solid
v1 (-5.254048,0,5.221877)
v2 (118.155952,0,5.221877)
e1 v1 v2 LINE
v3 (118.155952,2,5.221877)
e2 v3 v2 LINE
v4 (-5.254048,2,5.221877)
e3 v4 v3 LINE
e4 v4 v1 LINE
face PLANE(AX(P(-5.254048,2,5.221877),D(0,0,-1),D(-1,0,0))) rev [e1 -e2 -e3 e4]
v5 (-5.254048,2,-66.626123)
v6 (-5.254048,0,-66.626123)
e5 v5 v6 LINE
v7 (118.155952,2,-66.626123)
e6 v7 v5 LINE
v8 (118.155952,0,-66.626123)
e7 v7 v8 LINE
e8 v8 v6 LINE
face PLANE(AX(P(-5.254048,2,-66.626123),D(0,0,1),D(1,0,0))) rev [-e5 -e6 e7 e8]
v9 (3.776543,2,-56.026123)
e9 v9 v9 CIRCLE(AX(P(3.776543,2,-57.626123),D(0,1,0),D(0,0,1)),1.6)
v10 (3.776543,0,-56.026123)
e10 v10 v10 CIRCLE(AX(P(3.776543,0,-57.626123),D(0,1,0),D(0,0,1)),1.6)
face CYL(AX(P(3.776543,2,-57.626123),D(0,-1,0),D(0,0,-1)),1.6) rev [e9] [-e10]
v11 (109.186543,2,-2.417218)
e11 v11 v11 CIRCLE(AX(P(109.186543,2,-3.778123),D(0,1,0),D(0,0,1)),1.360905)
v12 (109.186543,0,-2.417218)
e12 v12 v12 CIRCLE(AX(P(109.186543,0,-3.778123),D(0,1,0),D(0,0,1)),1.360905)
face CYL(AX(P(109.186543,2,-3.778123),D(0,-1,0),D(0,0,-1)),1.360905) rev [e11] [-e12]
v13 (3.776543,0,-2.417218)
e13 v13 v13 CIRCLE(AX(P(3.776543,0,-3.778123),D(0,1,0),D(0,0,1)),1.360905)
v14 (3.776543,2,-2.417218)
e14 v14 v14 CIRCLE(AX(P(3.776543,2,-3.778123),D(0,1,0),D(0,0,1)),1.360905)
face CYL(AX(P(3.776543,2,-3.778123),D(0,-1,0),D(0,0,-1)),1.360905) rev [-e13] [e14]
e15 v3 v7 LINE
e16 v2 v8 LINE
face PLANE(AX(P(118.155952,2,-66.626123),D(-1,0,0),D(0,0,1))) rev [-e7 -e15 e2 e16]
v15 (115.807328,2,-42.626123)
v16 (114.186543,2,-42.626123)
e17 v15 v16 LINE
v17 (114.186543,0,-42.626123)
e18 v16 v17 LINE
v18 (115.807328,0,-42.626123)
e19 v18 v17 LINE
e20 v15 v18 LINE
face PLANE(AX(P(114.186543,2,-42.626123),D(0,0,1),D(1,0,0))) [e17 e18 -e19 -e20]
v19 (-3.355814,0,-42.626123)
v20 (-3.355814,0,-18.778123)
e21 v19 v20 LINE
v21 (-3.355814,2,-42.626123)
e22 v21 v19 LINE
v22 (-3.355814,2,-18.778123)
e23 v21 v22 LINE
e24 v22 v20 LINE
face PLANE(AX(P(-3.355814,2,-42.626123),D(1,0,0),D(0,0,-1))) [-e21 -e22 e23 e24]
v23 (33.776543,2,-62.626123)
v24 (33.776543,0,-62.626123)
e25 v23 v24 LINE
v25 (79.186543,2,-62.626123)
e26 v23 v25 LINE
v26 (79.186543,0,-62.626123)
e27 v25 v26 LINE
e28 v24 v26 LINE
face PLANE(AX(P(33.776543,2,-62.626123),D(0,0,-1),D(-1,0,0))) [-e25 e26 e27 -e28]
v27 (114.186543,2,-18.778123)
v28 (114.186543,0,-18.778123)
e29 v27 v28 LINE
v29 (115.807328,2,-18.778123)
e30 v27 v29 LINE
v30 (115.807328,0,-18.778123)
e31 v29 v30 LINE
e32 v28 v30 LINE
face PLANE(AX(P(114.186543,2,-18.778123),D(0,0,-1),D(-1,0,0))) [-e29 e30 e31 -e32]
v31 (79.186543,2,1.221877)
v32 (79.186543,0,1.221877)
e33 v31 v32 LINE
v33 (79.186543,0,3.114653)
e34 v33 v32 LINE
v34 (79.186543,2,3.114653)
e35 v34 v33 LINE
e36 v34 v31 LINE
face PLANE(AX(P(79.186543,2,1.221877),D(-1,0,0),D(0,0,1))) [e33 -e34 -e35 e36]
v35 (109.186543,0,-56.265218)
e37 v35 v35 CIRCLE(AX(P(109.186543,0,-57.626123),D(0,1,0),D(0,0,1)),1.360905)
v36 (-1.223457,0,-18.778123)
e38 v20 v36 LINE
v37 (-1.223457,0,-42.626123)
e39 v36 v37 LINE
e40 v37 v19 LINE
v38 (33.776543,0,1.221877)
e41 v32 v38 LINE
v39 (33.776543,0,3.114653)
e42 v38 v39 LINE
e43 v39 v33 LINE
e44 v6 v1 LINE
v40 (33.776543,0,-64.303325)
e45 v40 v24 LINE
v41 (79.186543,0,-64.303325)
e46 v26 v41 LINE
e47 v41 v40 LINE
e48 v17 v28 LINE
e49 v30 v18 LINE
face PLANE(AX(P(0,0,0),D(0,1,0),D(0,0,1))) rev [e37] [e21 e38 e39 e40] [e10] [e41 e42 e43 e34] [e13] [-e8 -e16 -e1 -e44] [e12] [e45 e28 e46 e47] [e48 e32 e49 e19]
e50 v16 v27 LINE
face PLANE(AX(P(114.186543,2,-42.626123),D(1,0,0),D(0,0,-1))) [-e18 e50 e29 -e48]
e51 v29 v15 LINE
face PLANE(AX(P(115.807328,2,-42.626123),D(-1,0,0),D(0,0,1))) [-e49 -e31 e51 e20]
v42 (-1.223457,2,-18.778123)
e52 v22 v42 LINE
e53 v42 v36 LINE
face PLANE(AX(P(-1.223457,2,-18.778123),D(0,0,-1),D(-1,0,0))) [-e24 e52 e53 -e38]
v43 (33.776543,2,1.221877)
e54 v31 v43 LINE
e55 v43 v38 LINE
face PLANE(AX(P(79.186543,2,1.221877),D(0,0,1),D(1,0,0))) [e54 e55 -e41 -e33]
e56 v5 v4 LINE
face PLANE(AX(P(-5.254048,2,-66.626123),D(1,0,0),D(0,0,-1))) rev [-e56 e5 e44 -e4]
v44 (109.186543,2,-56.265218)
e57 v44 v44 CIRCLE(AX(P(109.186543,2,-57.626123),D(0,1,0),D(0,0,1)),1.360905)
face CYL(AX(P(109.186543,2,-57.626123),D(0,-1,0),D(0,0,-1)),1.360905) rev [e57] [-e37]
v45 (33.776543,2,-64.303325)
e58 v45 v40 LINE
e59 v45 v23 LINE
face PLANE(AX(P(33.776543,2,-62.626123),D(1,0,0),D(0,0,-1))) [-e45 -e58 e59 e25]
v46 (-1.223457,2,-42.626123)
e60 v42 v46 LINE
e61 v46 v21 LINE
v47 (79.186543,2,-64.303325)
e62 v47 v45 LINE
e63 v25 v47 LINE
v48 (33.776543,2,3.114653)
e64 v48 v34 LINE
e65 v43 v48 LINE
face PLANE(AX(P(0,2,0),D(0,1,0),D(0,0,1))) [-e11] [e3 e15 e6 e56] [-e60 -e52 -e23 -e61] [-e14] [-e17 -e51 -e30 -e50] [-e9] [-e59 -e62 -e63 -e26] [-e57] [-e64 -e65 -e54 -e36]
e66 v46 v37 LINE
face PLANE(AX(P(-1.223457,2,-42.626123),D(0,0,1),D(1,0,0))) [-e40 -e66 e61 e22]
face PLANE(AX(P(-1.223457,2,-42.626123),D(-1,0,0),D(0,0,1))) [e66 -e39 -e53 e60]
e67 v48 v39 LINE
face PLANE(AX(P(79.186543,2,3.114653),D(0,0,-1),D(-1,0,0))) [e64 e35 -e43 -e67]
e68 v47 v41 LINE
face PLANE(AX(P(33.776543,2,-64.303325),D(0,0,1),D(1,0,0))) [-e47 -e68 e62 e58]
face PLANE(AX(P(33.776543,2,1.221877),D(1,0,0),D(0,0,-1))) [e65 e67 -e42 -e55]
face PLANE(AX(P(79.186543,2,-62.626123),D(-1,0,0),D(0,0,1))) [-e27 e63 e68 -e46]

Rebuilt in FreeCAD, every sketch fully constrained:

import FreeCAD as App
import Part
import Sketcher
from FreeCAD import Vector


def add_polygon(sketch, points):
    """Adds a closed chain of lines whose ends are joined by coincident constraints."""
    first, n = sketch.GeometryCount, len(points)
    for a, b in zip(points, points[1:] + points[:1]):
        sketch.addGeometry(Part.LineSegment(App.Vector(*a, 0), App.Vector(*b, 0)), False)
    for i in range(n):
        sketch.addConstraint(Sketcher.Constraint("Coincident", first + i, 2, first + (i + 1) % n, 1))

doc = App.newDocument("Part")
body = doc.addObject("PartDesign::Body", "Body")

# Sketch on XZ plane
sketch1 = body.newObject("Sketcher::SketchObject", "Sketch")
sketch1.AttachmentSupport = (doc.getObject("XZ_Plane"), [""])
sketch1.MapMode = "FlatFace"
add_polygon(sketch1, [(-5.3, -66.6), (-5.3, 5.2), (118.2, 5.2), (118.2, -66.6)])  # lines 0-3
sketch1.addGeometry(Part.Circle(Vector(3.8, -3.8, 0), Vector(0, 0, 1), 1.4), False)  # 4
add_polygon(sketch1, [(79.2, 3.1), (33.8, 3.1), (33.8, 1.2), (79.2, 1.2)])  # lines 5-8
sketch1.addGeometry(Part.Circle(Vector(109.2, -3.8, 0), Vector(0, 0, 1), 1.4), False)  # 9
add_polygon(sketch1, [(-1.2, -18.8), (-3.4, -18.8), (-3.4, -42.6), (-1.2, -42.6)])  # lines 10-13
sketch1.addGeometry(Part.Circle(Vector(3.8, -57.6, 0), Vector(0, 0, 1), 1.6), False)  # 14
add_polygon(sketch1, [(115.8, -18.8), (114.2, -18.8), (114.2, -42.6), (115.8, -42.6)])  # lines 15-18
add_polygon(sketch1, [(79.2, -62.6), (33.8, -62.6), (33.8, -64.3), (79.2, -64.3)])  # lines 19-22
sketch1.addGeometry(Part.Circle(Vector(109.2, -57.6, 0), Vector(0, 0, 1), 1.4), False)  # 23
sketch1.addConstraint(Sketcher.Constraint("Vertical", 0))
sketch1.addConstraint(Sketcher.Constraint("Horizontal", 1))
sketch1.addConstraint(Sketcher.Constraint("Vertical", 2))
sketch1.addConstraint(Sketcher.Constraint("Horizontal", 3))
sketch1.addConstraint(Sketcher.Constraint("Horizontal", 5))
sketch1.addConstraint(Sketcher.Constraint("Vertical", 6))
sketch1.addConstraint(Sketcher.Constraint("Horizontal", 7))
sketch1.addConstraint(Sketcher.Constraint("Vertical", 8))
sketch1.addConstraint(Sketcher.Constraint("Horizontal", 10))
sketch1.addConstraint(Sketcher.Constraint("Vertical", 11))
sketch1.addConstraint(Sketcher.Constraint("Horizontal", 12))
sketch1.addConstraint(Sketcher.Constraint("Vertical", 13))
sketch1.addConstraint(Sketcher.Constraint("Horizontal", 15))
sketch1.addConstraint(Sketcher.Constraint("Vertical", 16))
sketch1.addConstraint(Sketcher.Constraint("Horizontal", 17))
sketch1.addConstraint(Sketcher.Constraint("Vertical", 18))
sketch1.addConstraint(Sketcher.Constraint("Horizontal", 19))
sketch1.addConstraint(Sketcher.Constraint("Vertical", 20))
sketch1.addConstraint(Sketcher.Constraint("Horizontal", 21))
sketch1.addConstraint(Sketcher.Constraint("Vertical", 22))
sketch1.addConstraint(Sketcher.Constraint("Equal", 4, 9))
sketch1.addConstraint(Sketcher.Constraint("Equal", 9, 23))
sketch1.addConstraint(Sketcher.Constraint("Horizontal", 4, 3, 9, 3))
sketch1.addConstraint(Sketcher.Constraint("Horizontal", 14, 3, 23, 3))
sketch1.addConstraint(Sketcher.Constraint("Horizontal", 13, 2, 15, 2))
sketch1.addConstraint(Sketcher.Constraint("Horizontal", 12, 2, 16, 2))
sketch1.addConstraint(Sketcher.Constraint("Vertical", 4, 3, 14, 3))
sketch1.addConstraint(Sketcher.Constraint("Vertical", 9, 3, 23, 3))
sketch1.addConstraint(Sketcher.Constraint("Vertical", 6, 2, 19, 2))
sketch1.addConstraint(Sketcher.Constraint("Vertical", 8, 2, 21, 2))
sketch1.addConstraint(Sketcher.Constraint("Diameter", 14, 3.2))
sketch1.addConstraint(Sketcher.Constraint("DistanceY", 4, 3, 0, 2, 9.0))
sketch1.addConstraint(Sketcher.Constraint("DistanceY", 2, 2, 23, 3, 9.0))
sketch1.addConstraint(Sketcher.Constraint("DistanceX", 4, 3, 5, 2, 30.0))
sketch1.addConstraint(Sketcher.Constraint("DistanceY", 4, 3, 6, 2, 5.0))
sketch1.addConstraint(Sketcher.Constraint("DistanceX", 7, 2, 9, 3, 30.0))
sketch1.addConstraint(Sketcher.Constraint("DistanceY", 10, 2, 4, 3, 15.0))
sketch1.addConstraint(Sketcher.Constraint("DistanceY", 14, 3, 11, 2, 15.0))
sketch1.addConstraint(Sketcher.Constraint("DistanceX", 12, 2, 14, 3, 5.0))
sketch1.addConstraint(Sketcher.Constraint("DistanceX", 9, 3, 15, 2, 5.0))
sketch1.addConstraint(Sketcher.Constraint("DistanceY", 19, 2, 14, 3, 5.0))
sketch1.addConstraint(Sketcher.Constraint("DistanceX", 1, 1, 1, 2, 123.41))
sketch1.addConstraint(Sketcher.Constraint("DistanceX", 5, 2, 5, 1, 45.41))
sketch1.addConstraint(Sketcher.Constraint("Diameter", 4, 2.721809))
sketch1.addConstraint(Sketcher.Constraint("DistanceY", 0, 1, 0, 2, 71.848))
sketch1.addConstraint(Sketcher.Constraint("DistanceX", 10, 2, 10, 1, 2.132357))
sketch1.addConstraint(Sketcher.Constraint("DistanceX", 15, 2, 15, 1, 1.620785))
sketch1.addConstraint(Sketcher.Constraint("DistanceY", 6, 2, 6, 1, 1.892776))
sketch1.addConstraint(Sketcher.Constraint("DistanceY", 20, 2, 20, 1, 1.677202))
sketch1.addConstraint(Sketcher.Constraint("DistanceX", -1, 1, 17, 2, 115.807328))
sketch1.addConstraint(Sketcher.Constraint("DistanceX", 0, 2, 4, 3, 9.030591))
sketch1.addConstraint(Sketcher.Constraint("DistanceY", 4, 3, -1, 1, 3.778123))
pad1 = body.newObject("PartDesign::Pad", "Pad")
pad1.Profile = sketch1
pad1.Length = 2
pad1.Reversed = True

doc.recompute()
